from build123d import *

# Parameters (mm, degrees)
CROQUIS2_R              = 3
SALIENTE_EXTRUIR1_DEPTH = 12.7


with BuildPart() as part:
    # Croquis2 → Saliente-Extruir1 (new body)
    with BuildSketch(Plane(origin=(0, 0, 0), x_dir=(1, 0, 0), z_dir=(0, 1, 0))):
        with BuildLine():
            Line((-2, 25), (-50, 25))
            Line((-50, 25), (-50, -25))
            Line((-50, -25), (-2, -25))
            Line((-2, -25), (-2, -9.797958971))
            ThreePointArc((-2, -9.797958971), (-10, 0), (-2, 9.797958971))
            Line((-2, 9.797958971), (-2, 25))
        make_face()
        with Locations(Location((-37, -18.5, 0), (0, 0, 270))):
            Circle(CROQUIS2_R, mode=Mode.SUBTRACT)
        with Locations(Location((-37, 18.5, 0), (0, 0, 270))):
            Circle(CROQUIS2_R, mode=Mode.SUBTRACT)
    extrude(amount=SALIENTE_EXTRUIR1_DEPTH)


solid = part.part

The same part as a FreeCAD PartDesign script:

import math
import FreeCAD as App
import Part
import Sketcher

V = App.Vector
Q = App.Units.Quantity

doc = App.newDocument("Part")
params = doc.addObject("Spreadsheet::Sheet", "Params")
for row, (alias, value) in enumerate([
    ("sketch1_diameter", "6 mm"),
    ("sketch1_radius", "10 mm"),
    ("sketch1_width", "48 mm"),
    ("sketch1_height", "50 mm"),
    ("pad1_length", "12.7 mm"),
], start=1):
    params.set(f"A{row}", alias)
    params.set(f"B{row}", "=" + value)
    params.setAlias(f"B{row}", alias)

body = doc.addObject("PartDesign::Body", "Body")

# Sketch on XZ plane
sketch1 = body.newObject("Sketcher::SketchObject", "Sketch")
sketch1.AttachmentSupport = (doc.getObject("XZ_Plane"), [""])
sketch1.MapMode = "FlatFace"
sketch1.addGeometry([
    Part.LineSegment(V(-2, -25, 0), V(-50, -25, 0)),  # 0
    Part.LineSegment(V(-50, -25, 0), V(-50, 25, 0)),  # 1
    Part.LineSegment(V(-50, 25, 0), V(-2, 25, 0)),  # 2
    Part.LineSegment(V(-2, 25, 0), V(-2, 9.8, 0)),  # 3
    Part.ArcOfCircle(Part.Circle(V(0, 0, 0), V(0, 0, 1), 10), math.radians(102), math.radians(258)),  # 4
    Part.LineSegment(V(-2, -9.8, 0), V(-2, -25, 0)),  # 5
    Part.Circle(V(-37, 18.5, 0), V(0, 0, 1), 3),  # 6
    Part.Circle(V(-37, -18.5, 0), V(0, 0, 1), 3),  # 7
], False)
sketch1.addConstraint([
    Sketcher.Constraint("Coincident", 0, 2, 1, 1),
    Sketcher.Constraint("Coincident", 1, 2, 2, 1),
    Sketcher.Constraint("Coincident", 2, 2, 3, 1),
    Sketcher.Constraint("Coincident", 3, 2, 4, 1),
    Sketcher.Constraint("Coincident", 4, 2, 5, 1),
    Sketcher.Constraint("Coincident", 5, 2, 0, 1),
    Sketcher.Constraint("Horizontal", 0),
    Sketcher.Constraint("Vertical", 1),
    Sketcher.Constraint("Horizontal", 2),
    Sketcher.Constraint("Vertical", 3),
    Sketcher.Constraint("Vertical", 5),
    Sketcher.Constraint("Coincident", 4, 3, -1, 1),
    Sketcher.Constraint("Equal", 6, 7),
    Sketcher.Constraint("Symmetric", 6, 3, 7, 3, -1),
    Sketcher.Constraint("Symmetric", 2, 2, 5, 2, -1),
    Sketcher.Constraint("Diameter", 6, Q("6 mm")),
    Sketcher.Constraint("Radius", 4, Q("10 mm")),
    Sketcher.Constraint("DistanceX", 0, 2, 0, 1, Q("48 mm")),
    Sketcher.Constraint("DistanceY", 1, 1, 1, 2, Q("50 mm")),
    Sketcher.Constraint("DistanceX", 6, 3, -1, 1, Q("37 mm")),
    Sketcher.Constraint("DistanceX", 0, 2, -1, 1, Q("50 mm")),
    Sketcher.Constraint("DistanceY", 7, 3, 6, 3, Q("37 mm")),
])
sketch1.setExpression("Constraints[15]", "Params.sketch1_diameter")
sketch1.setExpression("Constraints[16]", "Params.sketch1_radius")
sketch1.setExpression("Constraints[17]", "Params.sketch1_width")
sketch1.setExpression("Constraints[18]", "Params.sketch1_height")
pad1 = body.newObject("PartDesign::Pad", "Pad")
pad1.Profile = sketch1
pad1.setExpression("Length", "Params.pad1_length")
pad1.Reversed = True

doc.recompute()
